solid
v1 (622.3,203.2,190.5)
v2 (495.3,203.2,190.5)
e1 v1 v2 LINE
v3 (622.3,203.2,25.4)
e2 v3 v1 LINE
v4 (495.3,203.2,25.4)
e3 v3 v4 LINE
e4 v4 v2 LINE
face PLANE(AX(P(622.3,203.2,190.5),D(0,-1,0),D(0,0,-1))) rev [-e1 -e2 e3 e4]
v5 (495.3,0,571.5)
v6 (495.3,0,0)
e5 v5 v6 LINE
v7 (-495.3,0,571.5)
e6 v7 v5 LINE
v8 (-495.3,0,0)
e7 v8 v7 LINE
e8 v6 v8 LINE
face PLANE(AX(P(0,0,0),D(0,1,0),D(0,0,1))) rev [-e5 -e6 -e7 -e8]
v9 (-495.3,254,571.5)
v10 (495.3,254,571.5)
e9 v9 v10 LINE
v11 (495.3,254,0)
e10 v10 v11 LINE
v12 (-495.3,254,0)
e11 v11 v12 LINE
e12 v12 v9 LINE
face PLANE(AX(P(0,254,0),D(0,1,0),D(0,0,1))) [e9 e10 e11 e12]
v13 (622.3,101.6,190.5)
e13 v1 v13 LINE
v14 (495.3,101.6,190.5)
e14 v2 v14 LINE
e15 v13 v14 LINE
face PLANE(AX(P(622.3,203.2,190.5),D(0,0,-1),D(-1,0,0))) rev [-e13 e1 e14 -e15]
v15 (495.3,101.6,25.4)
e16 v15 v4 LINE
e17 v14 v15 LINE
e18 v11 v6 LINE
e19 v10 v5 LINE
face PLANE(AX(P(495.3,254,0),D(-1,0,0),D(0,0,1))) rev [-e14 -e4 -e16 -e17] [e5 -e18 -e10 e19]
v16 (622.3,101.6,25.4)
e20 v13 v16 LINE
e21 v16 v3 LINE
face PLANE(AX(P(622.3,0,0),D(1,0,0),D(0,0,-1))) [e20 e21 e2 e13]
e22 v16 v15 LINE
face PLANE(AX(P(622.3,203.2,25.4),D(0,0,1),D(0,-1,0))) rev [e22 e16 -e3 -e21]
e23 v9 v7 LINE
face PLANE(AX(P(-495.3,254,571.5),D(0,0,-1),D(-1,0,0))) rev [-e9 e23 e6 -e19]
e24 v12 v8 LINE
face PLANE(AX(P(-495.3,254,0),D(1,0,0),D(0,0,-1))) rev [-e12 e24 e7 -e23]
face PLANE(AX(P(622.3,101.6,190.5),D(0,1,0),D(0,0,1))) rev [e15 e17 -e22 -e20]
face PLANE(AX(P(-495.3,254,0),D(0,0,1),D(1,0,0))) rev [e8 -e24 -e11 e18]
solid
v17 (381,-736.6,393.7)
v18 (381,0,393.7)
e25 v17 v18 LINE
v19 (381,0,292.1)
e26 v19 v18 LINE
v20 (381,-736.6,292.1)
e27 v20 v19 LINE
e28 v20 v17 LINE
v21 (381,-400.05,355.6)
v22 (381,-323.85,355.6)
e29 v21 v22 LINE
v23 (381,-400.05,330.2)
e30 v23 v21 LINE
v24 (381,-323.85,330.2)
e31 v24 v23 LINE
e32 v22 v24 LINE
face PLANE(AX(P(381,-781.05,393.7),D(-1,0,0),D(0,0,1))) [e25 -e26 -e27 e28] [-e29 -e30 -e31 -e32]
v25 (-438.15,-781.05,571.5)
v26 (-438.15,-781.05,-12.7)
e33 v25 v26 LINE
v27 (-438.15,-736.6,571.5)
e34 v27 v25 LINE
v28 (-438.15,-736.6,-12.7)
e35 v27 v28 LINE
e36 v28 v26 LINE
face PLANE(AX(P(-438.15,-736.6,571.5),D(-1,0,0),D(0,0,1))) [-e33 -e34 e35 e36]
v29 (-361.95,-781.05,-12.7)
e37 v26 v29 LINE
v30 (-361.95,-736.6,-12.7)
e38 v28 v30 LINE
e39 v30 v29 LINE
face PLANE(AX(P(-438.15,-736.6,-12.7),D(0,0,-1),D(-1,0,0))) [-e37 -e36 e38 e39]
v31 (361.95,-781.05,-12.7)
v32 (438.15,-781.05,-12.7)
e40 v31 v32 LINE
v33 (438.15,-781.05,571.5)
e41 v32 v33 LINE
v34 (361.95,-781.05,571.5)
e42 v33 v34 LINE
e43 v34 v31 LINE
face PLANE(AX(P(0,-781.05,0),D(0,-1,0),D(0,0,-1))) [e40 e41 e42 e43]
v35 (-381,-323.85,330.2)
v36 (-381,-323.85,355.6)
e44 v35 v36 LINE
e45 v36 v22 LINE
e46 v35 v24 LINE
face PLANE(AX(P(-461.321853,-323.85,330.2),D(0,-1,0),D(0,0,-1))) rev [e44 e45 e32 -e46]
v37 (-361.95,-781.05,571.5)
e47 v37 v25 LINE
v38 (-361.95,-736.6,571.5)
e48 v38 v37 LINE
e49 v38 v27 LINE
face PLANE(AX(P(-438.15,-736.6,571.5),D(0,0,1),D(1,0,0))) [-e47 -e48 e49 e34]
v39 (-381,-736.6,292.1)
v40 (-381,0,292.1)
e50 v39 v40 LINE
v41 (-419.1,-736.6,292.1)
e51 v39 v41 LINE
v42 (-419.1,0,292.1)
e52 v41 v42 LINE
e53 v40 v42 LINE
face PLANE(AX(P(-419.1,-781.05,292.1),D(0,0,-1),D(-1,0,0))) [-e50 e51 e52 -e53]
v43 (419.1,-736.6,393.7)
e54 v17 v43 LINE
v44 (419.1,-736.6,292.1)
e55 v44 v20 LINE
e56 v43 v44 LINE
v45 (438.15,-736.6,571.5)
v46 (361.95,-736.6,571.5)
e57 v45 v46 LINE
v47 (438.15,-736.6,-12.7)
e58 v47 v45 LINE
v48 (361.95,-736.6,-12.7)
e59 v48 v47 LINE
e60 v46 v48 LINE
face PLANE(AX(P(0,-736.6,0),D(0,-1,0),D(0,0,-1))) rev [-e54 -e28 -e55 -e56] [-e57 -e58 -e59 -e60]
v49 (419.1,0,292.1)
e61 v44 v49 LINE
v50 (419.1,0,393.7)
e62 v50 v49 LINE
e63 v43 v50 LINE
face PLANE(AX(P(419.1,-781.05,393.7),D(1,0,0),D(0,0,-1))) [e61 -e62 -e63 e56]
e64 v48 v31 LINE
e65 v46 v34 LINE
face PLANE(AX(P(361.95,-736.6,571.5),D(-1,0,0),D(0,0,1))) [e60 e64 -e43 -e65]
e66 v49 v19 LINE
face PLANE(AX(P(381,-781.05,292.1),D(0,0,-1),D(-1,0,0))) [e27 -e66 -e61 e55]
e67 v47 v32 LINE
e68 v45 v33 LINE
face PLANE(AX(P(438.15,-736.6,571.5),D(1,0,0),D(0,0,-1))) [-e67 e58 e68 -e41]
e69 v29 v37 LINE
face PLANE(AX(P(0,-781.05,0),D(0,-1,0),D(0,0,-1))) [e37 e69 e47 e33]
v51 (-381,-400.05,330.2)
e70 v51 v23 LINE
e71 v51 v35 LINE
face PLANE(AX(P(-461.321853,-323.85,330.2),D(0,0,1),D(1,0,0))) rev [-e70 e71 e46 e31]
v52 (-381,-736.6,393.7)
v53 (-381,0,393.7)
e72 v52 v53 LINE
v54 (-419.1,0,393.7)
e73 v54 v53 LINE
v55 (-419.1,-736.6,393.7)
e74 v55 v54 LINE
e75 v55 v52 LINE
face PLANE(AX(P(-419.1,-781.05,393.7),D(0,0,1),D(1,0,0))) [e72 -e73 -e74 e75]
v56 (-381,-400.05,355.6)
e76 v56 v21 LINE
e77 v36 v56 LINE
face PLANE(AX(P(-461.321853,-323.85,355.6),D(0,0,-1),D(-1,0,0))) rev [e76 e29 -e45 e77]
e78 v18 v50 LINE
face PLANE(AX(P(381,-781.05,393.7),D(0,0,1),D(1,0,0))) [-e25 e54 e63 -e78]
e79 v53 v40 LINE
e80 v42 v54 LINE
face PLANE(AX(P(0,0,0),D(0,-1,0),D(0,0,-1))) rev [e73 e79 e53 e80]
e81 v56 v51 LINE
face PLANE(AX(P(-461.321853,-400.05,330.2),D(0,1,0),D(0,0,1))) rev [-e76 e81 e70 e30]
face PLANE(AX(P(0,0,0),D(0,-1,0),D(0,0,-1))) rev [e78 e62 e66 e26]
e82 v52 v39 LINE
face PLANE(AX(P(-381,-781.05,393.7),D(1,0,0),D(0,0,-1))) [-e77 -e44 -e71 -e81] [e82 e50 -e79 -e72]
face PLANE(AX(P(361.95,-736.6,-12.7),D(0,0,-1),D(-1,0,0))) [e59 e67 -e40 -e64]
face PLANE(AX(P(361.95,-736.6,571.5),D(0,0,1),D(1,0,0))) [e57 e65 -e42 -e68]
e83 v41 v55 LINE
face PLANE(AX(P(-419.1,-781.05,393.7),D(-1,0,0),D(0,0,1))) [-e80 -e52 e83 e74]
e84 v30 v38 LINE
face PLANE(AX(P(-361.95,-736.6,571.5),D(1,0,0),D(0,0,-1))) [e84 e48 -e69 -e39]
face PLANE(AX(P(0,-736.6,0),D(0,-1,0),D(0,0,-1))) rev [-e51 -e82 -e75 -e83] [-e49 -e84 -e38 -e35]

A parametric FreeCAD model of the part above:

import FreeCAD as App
import Part
import Sketcher
Q = App.Units.Quantity

doc = App.newDocument("Part")
body = doc.addObject("PartDesign::Body", "Body")

# Sketch on XZ plane
sketch1 = doc.addObject("Sketcher::SketchObject", "Sketch")
body.addObject(sketch1)
sketch1.AttachmentSupport = (doc.XZ_Plane, [""])
sketch1.MapMode = "FlatFace"
sketch1.addGeometry([
    Part.LineSegment(App.Vector(-495, 0, 0), App.Vector(-495, 572, 0)),
    Part.LineSegment(App.Vector(-495, 572, 0), App.Vector(495, 572, 0)),
    Part.LineSegment(App.Vector(495, 572, 0), App.Vector(495, 0, 0)),
    Part.LineSegment(App.Vector(495, 0, 0), App.Vector(-495, 0, 0)),
], False)
sketch1.addConstraint([
    Sketcher.Constraint("Coincident", 0, 2, 1, 1),
    Sketcher.Constraint("Coincident", 1, 2, 2, 1),
    Sketcher.Constraint("Coincident", 2, 2, 3, 1),
    Sketcher.Constraint("Coincident", 3, 2, 0, 1),
    Sketcher.Constraint("Vertical", 0),
    Sketcher.Constraint("Horizontal", 1),
    Sketcher.Constraint("Vertical", 2),
    Sketcher.Constraint("Horizontal", 3),
    Sketcher.Constraint("Symmetric", 2, 2, 3, 2, -1, 1),
    Sketcher.Constraint("DistanceX", 1, 1, 1, 2, Q("39 in")),
    Sketcher.Constraint("DistanceY", 0, 1, 0, 2, Q("22.5 in")),
])
pad1 = doc.addObject("PartDesign::Pad", "Pad")
body.addObject(pad1)
pad1.Profile = sketch1
pad1.Length = Q("10 in")
pad1.Reversed = True

# Sketch on YZ plane
sketch2 = doc.addObject("Sketcher::SketchObject", "Sketch001")
body.addObject(sketch2)
sketch2.AttachmentSupport = (doc.YZ_Plane, [""])
sketch2.MapMode = "FlatFace"
sketch2.AttachmentOffset = App.Placement(App.Vector(0, 0, 19.5 * 25.4), App.Rotation())
sketch2.addGeometry([
    Part.LineSegment(App.Vector(203, 190, 0), App.Vector(102, 190, 0)),
    Part.LineSegment(App.Vector(102, 190, 0), App.Vector(102, 25, 0)),
    Part.LineSegment(App.Vector(102, 25, 0), App.Vector(203, 25, 0)),
    Part.LineSegment(App.Vector(203, 25, 0), App.Vector(203, 190, 0)),
], False)
sketch2.addConstraint([
    Sketcher.Constraint("Coincident", 0, 2, 1, 1),
    Sketcher.Constraint("Coincident", 1, 2, 2, 1),
    Sketcher.Constraint("Coincident", 2, 2, 3, 1),
    Sketcher.Constraint("Coincident", 3, 2, 0, 1),
    Sketcher.Constraint("Horizontal", 0),
    Sketcher.Constraint("Vertical", 1),
    Sketcher.Constraint("Horizontal", 2),
    Sketcher.Constraint("Vertical", 3),
    Sketcher.Constraint("DistanceX", 0, 2, 0, 1, Q("4 in")),
    Sketcher.Constraint("DistanceY", 1, 2, 1, 1, Q("6.5 in")),
    Sketcher.Constraint("DistanceX", -1, 1, 0, 2, Q("4 in")),
    Sketcher.Constraint("DistanceY", -1, 1, 1, 2, Q("1 in")),
])
pad2 = doc.addObject("PartDesign::Pad", "Pad001")
body.addObject(pad2)
pad2.Profile = sketch2
pad2.Length = Q("5 in")
body2 = doc.addObject("PartDesign::Body", "Body001")

# Sketch on XZ plane
sketch3 = doc.addObject("Sketcher::SketchObject", "Sketch002")
body2.addObject(sketch3)
sketch3.AttachmentSupport = (doc.getObject("XZ_Plane001"), [""])
sketch3.MapMode = "FlatFace"
sketch3.addGeometry([
    Part.LineSegment(App.Vector(381, 292, 0), App.Vector(381, 394, 0)),
    Part.LineSegment(App.Vector(381, 394, 0), App.Vector(419, 394, 0)),
    Part.LineSegment(App.Vector(419, 394, 0), App.Vector(419, 292, 0)),
    Part.LineSegment(App.Vector(419, 292, 0), App.Vector(381, 292, 0)),
], False)
sketch3.addConstraint([
    Sketcher.Constraint("Coincident", 0, 2, 1, 1),
    Sketcher.Constraint("Coincident", 1, 2, 2, 1),
    Sketcher.Constraint("Coincident", 2, 2, 3, 1),
    Sketcher.Constraint("Coincident", 3, 2, 0, 1),
    Sketcher.Constraint("Vertical", 0),
    Sketcher.Constraint("Horizontal", 1),
    Sketcher.Constraint("Vertical", 2),
    Sketcher.Constraint("Horizontal", 3),
    Sketcher.Constraint("DistanceY", 0, 1, 0, 2, Q("4 in")),
    Sketcher.Constraint("DistanceX", 1, 1, 1, 2, Q("1.5 in")),
    Sketcher.Constraint("DistanceX", -1, 1, 0, 2, Q("15 in")),
    Sketcher.Constraint("DistanceY", -1, 1, 0, 2, Q("15.5 in")),
])
pad3 = doc.addObject("PartDesign::Pad", "Pad002")
body2.addObject(pad3)
pad3.Profile = sketch3
pad3.Length = Q("30.75 in")
body3 = doc.addObject("PartDesign::Body", "Body002")

# Sketch on XZ plane
sketch4 = doc.addObject("Sketcher::SketchObject", "Sketch003")
body3.addObject(sketch4)
sketch4.AttachmentSupport = (doc.getObject("XZ_Plane002"), [""])
sketch4.MapMode = "FlatFace"
sketch4.addGeometry([
    Part.LineSegment(App.Vector(-419, 292, 0), App.Vector(-419, 394, 0)),
    Part.LineSegment(App.Vector(-419, 394, 0), App.Vector(-381, 394, 0)),
    Part.LineSegment(App.Vector(-381, 394, 0), App.Vector(-381, 292, 0)),
    Part.LineSegment(App.Vector(-381, 292, 0), App.Vector(-419, 292, 0)),
], False)
sketch4.addConstraint([
    Sketcher.Constraint("Coincident", 0, 2, 1, 1),
    Sketcher.Constraint("Coincident", 1, 2, 2, 1),
    Sketcher.Constraint("Coincident", 2, 2, 3, 1),
    Sketcher.Constraint("Coincident", 3, 2, 0, 1),
    Sketcher.Constraint("Vertical", 0),
    Sketcher.Constraint("Horizontal", 1),
    Sketcher.Constraint("Vertical", 2),
    Sketcher.Constraint("Horizontal", 3),
    Sketcher.Constraint("DistanceY", 0, 1, 0, 2, Q("4 in")),
    Sketcher.Constraint("DistanceX", 1, 1, 1, 2, Q("1.5 in")),
    Sketcher.Constraint("DistanceX", 1, 2, -1, 1, Q("15 in")),
    Sketcher.Constraint("DistanceY", -1, 1, 0, 2, Q("15.5 in")),
])
pad4 = doc.addObject("PartDesign::Pad", "Pad003")
body3.addObject(pad4)
pad4.Profile = sketch4
pad4.Length = Q("30.75 in")
body2.AllowCompound = True
doc.recompute()

boolean = doc.addObject("PartDesign::Boolean", "Boolean")
body2.addObject(boolean)
boolean.Type = "Fuse"
boolean.addObjects([body3])

# Sketch on YZ plane
sketch5 = doc.addObject("Sketcher::SketchObject", "Sketch004")
body2.addObject(sketch5)
sketch5.AttachmentSupport = (doc.getObject("YZ_Plane001"), [""])
sketch5.MapMode = "FlatFace"
sketch5.AttachmentOffset = App.Placement(App.Vector(0, 0, 15 * 25.4), App.Rotation())
sketch5.addGeometry([
    Part.LineSegment(App.Vector(-324, 330, 0), App.Vector(-400, 330, 0)),
    Part.LineSegment(App.Vector(-400, 330, 0), App.Vector(-400, 356, 0)),
    Part.LineSegment(App.Vector(-400, 356, 0), App.Vector(-324, 356, 0)),
    Part.LineSegment(App.Vector(-324, 356, 0), App.Vector(-324, 330, 0)),
], False)
sketch5.addConstraint([
    Sketcher.Constraint("Coincident", 0, 2, 1, 1),
    Sketcher.Constraint("Coincident", 1, 2, 2, 1),
    Sketcher.Constraint("Coincident", 2, 2, 3, 1),
    Sketcher.Constraint("Coincident", 3, 2, 0, 1),
    Sketcher.Constraint("Horizontal", 0),
    Sketcher.Constraint("Vertical", 1),
    Sketcher.Constraint("Horizontal", 2),
    Sketcher.Constraint("Vertical", 3),
    Sketcher.Constraint("DistanceX", 0, 2, 0, 1, Q("3 in")),
    Sketcher.Constraint("DistanceY", 1, 1, 1, 2, Q("1 in")),
    Sketcher.Constraint("DistanceY", -1, 1, 0, 2, Q("13 in")),
    Sketcher.Constraint("DistanceX", 0, 2, -1, 1, Q("15.75 in")),
])
pad5 = doc.addObject("PartDesign::Pad", "Pad004")
body2.addObject(pad5)
pad5.Profile = sketch5
pad5.Length = Q("30 in")
pad5.Reversed = True

# Sketch on XZ plane
sketch6 = doc.addObject("Sketcher::SketchObject", "Sketch005")
body2.addObject(sketch6)
sketch6.AttachmentSupport = (doc.getObject("XZ_Plane001"), [""])
sketch6.MapMode = "FlatFace"
sketch6.AttachmentOffset = App.Placement(App.Vector(0, 0, 30.75 * 25.4), App.Rotation())
sketch6.addGeometry([
    Part.LineSegment(App.Vector(362, 572, 0), App.Vector(362, -13, 0)),  # 0
    Part.LineSegment(App.Vector(362, -13, 0), App.Vector(438, -13, 0)),  # 1
    Part.LineSegment(App.Vector(438, -13, 0), App.Vector(438, 572, 0)),  # 2
    Part.LineSegment(App.Vector(438, 572, 0), App.Vector(362, 572, 0)),  # 3
    Part.LineSegment(App.Vector(-438, 572, 0), App.Vector(-438, -13, 0)),  # 4
    Part.LineSegment(App.Vector(-438, -13, 0), App.Vector(-362, -13, 0)),  # 5
    Part.LineSegment(App.Vector(-362, -13, 0), App.Vector(-362, 572, 0)),  # 6
    Part.LineSegment(App.Vector(-362, 572, 0), App.Vector(-438, 572, 0)),  # 7
], False)
sketch6.addConstraint([
    Sketcher.Constraint("Coincident", 0, 2, 1, 1),
    Sketcher.Constraint("Coincident", 1, 2, 2, 1),
    Sketcher.Constraint("Coincident", 2, 2, 3, 1),
    Sketcher.Constraint("Coincident", 3, 2, 0, 1),
    Sketcher.Constraint("Coincident", 4, 2, 5, 1),
    Sketcher.Constraint("Coincident", 5, 2, 6, 1),
    Sketcher.Constraint("Coincident", 6, 2, 7, 1),
    Sketcher.Constraint("Coincident", 7, 2, 4, 1),
    Sketcher.Constraint("Vertical", 0),
    Sketcher.Constraint("Horizontal", 1),
    Sketcher.Constraint("Vertical", 2),
    Sketcher.Constraint("Horizontal", 3),
    Sketcher.Constraint("Vertical", 4),
    Sketcher.Constraint("Horizontal", 5),
    Sketcher.Constraint("Vertical", 6),
    Sketcher.Constraint("Horizontal", 7),
    Sketcher.Constraint("Symmetric", 1, 2, 4, 2, -2),
    Sketcher.Constraint("Symmetric", 3, 2, 6, 2, -2),
    Sketcher.Constraint("DistanceX", 1, 1, 1, 2, Q("3 in")),
    Sketcher.Constraint("DistanceY", 0, 2, 0, 1, Q("23 in")),
    Sketcher.Constraint("DistanceY", 0, 2, -1, 1, Q("0.5 in")),
    Sketcher.Constraint("DistanceX", 4, 2, 0, 2, Q("31.5 in")),
])
pad6 = doc.addObject("PartDesign::Pad", "Pad005")
body2.addObject(pad6)
pad6.Profile = sketch6
pad6.Length = Q("1.75 in")
pad6.Reversed = True

doc.recompute()
